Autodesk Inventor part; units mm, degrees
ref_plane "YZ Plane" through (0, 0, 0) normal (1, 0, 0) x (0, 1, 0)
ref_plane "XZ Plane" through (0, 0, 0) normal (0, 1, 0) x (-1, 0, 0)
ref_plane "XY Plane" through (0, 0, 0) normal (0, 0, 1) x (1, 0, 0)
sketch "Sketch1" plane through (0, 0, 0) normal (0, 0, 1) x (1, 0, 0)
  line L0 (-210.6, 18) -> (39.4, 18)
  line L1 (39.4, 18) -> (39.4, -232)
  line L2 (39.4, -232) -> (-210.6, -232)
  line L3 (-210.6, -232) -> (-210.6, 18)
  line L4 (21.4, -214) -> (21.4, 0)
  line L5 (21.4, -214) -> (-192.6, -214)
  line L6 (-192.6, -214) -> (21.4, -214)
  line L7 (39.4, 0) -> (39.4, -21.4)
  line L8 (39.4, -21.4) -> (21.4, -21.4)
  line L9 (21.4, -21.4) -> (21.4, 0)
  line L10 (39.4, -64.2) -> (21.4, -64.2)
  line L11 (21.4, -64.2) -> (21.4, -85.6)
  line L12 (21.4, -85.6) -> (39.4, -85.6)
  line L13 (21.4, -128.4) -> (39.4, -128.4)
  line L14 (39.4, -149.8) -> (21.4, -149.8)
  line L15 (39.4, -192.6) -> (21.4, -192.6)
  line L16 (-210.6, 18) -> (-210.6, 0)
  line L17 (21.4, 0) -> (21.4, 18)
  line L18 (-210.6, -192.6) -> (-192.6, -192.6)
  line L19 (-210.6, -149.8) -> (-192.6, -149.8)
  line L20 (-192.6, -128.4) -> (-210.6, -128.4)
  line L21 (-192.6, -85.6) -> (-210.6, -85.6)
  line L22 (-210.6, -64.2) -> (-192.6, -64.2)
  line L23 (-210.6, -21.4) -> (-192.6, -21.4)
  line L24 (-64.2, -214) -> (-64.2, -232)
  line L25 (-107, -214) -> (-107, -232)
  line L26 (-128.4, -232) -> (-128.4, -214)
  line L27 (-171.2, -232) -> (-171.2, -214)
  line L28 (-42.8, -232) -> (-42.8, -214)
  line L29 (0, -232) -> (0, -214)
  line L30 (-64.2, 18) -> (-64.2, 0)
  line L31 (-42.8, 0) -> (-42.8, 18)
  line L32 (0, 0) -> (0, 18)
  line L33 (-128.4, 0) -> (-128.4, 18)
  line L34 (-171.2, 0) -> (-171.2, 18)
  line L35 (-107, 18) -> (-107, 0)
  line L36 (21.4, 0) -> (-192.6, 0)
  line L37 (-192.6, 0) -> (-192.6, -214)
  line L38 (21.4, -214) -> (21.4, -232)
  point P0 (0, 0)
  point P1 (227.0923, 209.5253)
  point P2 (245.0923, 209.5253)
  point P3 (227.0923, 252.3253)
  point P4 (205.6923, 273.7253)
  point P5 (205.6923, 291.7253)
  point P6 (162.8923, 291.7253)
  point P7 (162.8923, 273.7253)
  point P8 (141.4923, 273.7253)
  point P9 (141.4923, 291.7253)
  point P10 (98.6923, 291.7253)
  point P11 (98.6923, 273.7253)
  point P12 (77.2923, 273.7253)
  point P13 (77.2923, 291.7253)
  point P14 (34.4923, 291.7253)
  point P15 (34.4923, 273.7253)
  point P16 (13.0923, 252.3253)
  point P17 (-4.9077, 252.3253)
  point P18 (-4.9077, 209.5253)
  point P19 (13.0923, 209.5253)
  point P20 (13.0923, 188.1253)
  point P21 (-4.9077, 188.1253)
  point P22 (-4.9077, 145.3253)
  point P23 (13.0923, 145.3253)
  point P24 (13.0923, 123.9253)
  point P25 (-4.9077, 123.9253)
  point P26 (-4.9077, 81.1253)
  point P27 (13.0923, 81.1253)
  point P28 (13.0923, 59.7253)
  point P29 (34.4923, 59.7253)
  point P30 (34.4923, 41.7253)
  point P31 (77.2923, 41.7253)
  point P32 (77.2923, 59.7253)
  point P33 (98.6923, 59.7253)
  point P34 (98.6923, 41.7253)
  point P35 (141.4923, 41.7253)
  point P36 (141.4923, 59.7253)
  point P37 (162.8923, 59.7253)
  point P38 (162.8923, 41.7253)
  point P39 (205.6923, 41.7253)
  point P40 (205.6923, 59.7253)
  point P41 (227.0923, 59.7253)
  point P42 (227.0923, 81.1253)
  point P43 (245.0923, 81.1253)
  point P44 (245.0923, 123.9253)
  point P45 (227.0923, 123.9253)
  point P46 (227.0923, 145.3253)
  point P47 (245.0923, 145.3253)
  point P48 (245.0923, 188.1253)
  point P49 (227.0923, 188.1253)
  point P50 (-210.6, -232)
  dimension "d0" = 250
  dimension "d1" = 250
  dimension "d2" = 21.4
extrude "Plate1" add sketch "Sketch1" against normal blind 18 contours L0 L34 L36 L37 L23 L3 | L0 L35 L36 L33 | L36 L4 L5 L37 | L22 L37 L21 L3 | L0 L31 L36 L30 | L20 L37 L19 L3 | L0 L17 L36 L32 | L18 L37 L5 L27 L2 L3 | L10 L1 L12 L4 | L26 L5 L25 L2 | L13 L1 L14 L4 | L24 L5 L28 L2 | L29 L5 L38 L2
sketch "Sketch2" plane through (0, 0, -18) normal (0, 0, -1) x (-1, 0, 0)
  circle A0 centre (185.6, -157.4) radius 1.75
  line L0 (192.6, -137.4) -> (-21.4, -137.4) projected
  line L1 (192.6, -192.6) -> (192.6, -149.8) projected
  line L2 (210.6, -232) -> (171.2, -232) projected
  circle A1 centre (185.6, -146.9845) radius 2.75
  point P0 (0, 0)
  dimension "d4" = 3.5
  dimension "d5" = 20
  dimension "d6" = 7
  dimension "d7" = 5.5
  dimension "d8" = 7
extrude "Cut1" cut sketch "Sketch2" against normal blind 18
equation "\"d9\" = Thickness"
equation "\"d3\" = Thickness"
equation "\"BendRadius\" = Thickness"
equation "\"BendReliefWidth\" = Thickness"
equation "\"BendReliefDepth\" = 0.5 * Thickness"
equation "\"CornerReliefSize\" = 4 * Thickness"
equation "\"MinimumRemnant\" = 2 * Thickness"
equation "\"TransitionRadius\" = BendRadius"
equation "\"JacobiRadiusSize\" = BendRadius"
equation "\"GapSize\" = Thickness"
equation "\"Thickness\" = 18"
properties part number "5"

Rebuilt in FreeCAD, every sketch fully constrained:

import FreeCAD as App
import Part
import Sketcher
from FreeCAD import Vector


def add_polygon(sketch, points):
    """Adds a closed chain of lines whose ends are joined by coincident constraints."""
    first, n = sketch.GeometryCount, len(points)
    for a, b in zip(points, points[1:] + points[:1]):
        sketch.addGeometry(Part.LineSegment(App.Vector(*a, 0), App.Vector(*b, 0)), False)
    for i in range(n):
        sketch.addConstraint(Sketcher.Constraint("Coincident", first + i, 2, first + (i + 1) % n, 1))

doc = App.newDocument("Part")
body = doc.addObject("PartDesign::Body", "Body")

# Sketch on XY plane
sketch1 = body.newObject("Sketcher::SketchObject", "Sketch")
sketch1.AttachmentSupport = (doc.getObject("XY_Plane"), [""])
sketch1.MapMode = "FlatFace"
add_polygon(sketch1, [(-171, 18), (-211, 18), (-211, -21), (-193, -21), (-193, -64), (-211, -64), (-211, -86), (-193, -86), (-193, -128), (-211, -128), (-211, -150), (-193, -150), (-193, -193), (-211, -193), (-211, -232), (-171, -232), (-171, -214), (-128, -214), (-128, -232), (-107, -232), (-107, -214), (-64, -214), (-64, -232), (-43, -232), (-43, -214), (0, -214), (0, -232), (21, -232), (21, -150), (39, -150), (39, -128), (21, -128), (21, -86), (39, -86), (39, -64), (21, -64), (21, 18), (0, 18), (0, 0), (-43, 0), (-43, 18), (-64, 18), (-64, 0), (-107, 0), (-107, 18), (-128, 18), (-128, 0), (-171, 0)])  # lines 0-47
sketch1.addConstraint([
    Sketcher.Constraint("Horizontal", 0),
    Sketcher.Constraint("Vertical", 1),
    Sketcher.Constraint("Horizontal", 2),
    Sketcher.Constraint("Vertical", 3),
    Sketcher.Constraint("Horizontal", 4),
    Sketcher.Constraint("Vertical", 5),
    Sketcher.Constraint("Horizontal", 6),
    Sketcher.Constraint("Vertical", 7),
    Sketcher.Constraint("Horizontal", 8),
    Sketcher.Constraint("Vertical", 9),
    Sketcher.Constraint("Horizontal", 10),
    Sketcher.Constraint("Vertical", 11),
    Sketcher.Constraint("Horizontal", 12),
    Sketcher.Constraint("Vertical", 13),
    Sketcher.Constraint("Horizontal", 14),
    Sketcher.Constraint("Vertical", 15),
    Sketcher.Constraint("Horizontal", 16),
    Sketcher.Constraint("Vertical", 17),
    Sketcher.Constraint("Horizontal", 18),
    Sketcher.Constraint("Vertical", 19),
    Sketcher.Constraint("Horizontal", 20),
    Sketcher.Constraint("Vertical", 21),
    Sketcher.Constraint("Horizontal", 22),
    Sketcher.Constraint("Vertical", 23),
    Sketcher.Constraint("Horizontal", 24),
    Sketcher.Constraint("Vertical", 25),
    Sketcher.Constraint("Horizontal", 26),
    Sketcher.Constraint("Vertical", 27),
    Sketcher.Constraint("Horizontal", 28),
    Sketcher.Constraint("Vertical", 29),
    Sketcher.Constraint("Horizontal", 30),
    Sketcher.Constraint("Vertical", 31),
    Sketcher.Constraint("Horizontal", 32),
    Sketcher.Constraint("Vertical", 33),
    Sketcher.Constraint("Horizontal", 34),
    Sketcher.Constraint("Vertical", 35),
    Sketcher.Constraint("Horizontal", 36),
    Sketcher.Constraint("Vertical", 37),
    Sketcher.Constraint("Horizontal", 38),
    Sketcher.Constraint("Vertical", 39),
    Sketcher.Constraint("Horizontal", 40),
    Sketcher.Constraint("Vertical", 41),
    Sketcher.Constraint("Horizontal", 42),
    Sketcher.Constraint("Vertical", 43),
    Sketcher.Constraint("Horizontal", 44),
    Sketcher.Constraint("Vertical", 45),
    Sketcher.Constraint("Horizontal", 46),
    Sketcher.Constraint("Vertical", 47),
    Sketcher.Constraint("Coincident", 37, 2, -1, 1),
    Sketcher.Constraint("PointOnObject", 24, 2, -2),
    Sketcher.Constraint("PointOnObject", 41, 2, -1),
    Sketcher.Constraint("PointOnObject", 45, 2, -1),
    Sketcher.Constraint("Horizontal", 14, 2, 17, 2),
    Sketcher.Constraint("Horizontal", 16, 2, 19, 2),
    Sketcher.Constraint("Horizontal", 18, 2, 21, 2),
    Sketcher.Constraint("Horizontal", 20, 2, 23, 2),
    Sketcher.Constraint("Horizontal", 22, 2, 25, 2),
    Sketcher.Constraint("Horizontal", 10, 2, 27, 2),
    Sketcher.Constraint("Horizontal", 8, 2, 29, 2),
    Sketcher.Constraint("Horizontal", 6, 2, 31, 2),
    Sketcher.Constraint("Horizontal", 4, 2, 33, 2),
    Sketcher.Constraint("Horizontal", 0, 2, 35, 2),
    Sketcher.Constraint("Horizontal", 36, 2, 39, 2),
    Sketcher.Constraint("Horizontal", 40, 2, 43, 2),
    Sketcher.Constraint("Vertical", 1, 2, 4, 2),
    Sketcher.Constraint("Vertical", 3, 2, 6, 2),
    Sketcher.Constraint("Vertical", 5, 2, 8, 2),
    Sketcher.Constraint("Vertical", 7, 2, 10, 2),
    Sketcher.Constraint("Vertical", 9, 2, 12, 2),
    Sketcher.Constraint("Vertical", 27, 2, 30, 2),
    Sketcher.Constraint("Vertical", 29, 2, 32, 2),
    Sketcher.Constraint("Vertical", 31, 2, 34, 2),
    Sketcher.Constraint("Vertical", 23, 2, 38, 2),
    Sketcher.Constraint("Vertical", 21, 2, 40, 2),
    Sketcher.Constraint("Vertical", 19, 2, 42, 2),
    Sketcher.Constraint("Vertical", 17, 2, 44, 2),
    Sketcher.Constraint("Vertical", 15, 2, 46, 2),
    Sketcher.Constraint("Equal", 16, 20),
    Sketcher.Constraint("Equal", 18, 22),
    Sketcher.Constraint("Equal", 20, 24),
    Sketcher.Constraint("Equal", 22, 26),
    Sketcher.Constraint("Equal", 12, 28),
    Sketcher.Constraint("Equal", 14, 1),
    Sketcher.Constraint("Equal", 46, 3),
    Sketcher.Constraint("Equal", 44, 5),
    Sketcher.Constraint("Equal", 3, 7),
    Sketcher.Constraint("Equal", 5, 9),
    Sketcher.Constraint("Equal", 7, 11),
    Sketcher.Constraint("Equal", 1, 13),
    Sketcher.Constraint("Equal", 34, 15),
    Sketcher.Constraint("Equal", 25, 37),
    Sketcher.Constraint("DistanceX", 18, 1, 18, 2, 21.4),
    Sketcher.Constraint("DistanceY", 1, 2, -1, 1, 21.4),
    Sketcher.Constraint("DistanceX", 2, 1, 2, 2, 18.0),
    Sketcher.Constraint("DistanceX", 16, 1, 16, 2, 42.8),
])
pad1 = body.newObject("PartDesign::Pad", "Pad")
pad1.Profile = sketch1
pad1.Length = 18
pad1.Reversed = True

# Sketch on XY plane
sketch2 = body.newObject("Sketcher::SketchObject", "Sketch001")
sketch2.AttachmentSupport = (doc.getObject("XY_Plane"), [""])
sketch2.MapMode = "FlatFace"
sketch2.AttachmentOffset = App.Placement(Vector(0, 0, -18), App.Rotation())
sketch2.addGeometry([
    Part.Circle(Vector(-185.6, -157.4, 0), Vector(0, 0, 1), 1.8),
    Part.Circle(Vector(-185.6, -147, 0), Vector(0, 0, 1), 2.8),
], False)
sketch2.addConstraint([
    Sketcher.Constraint("Vertical", 0, 3, 1, 3),
    Sketcher.Constraint("Diameter", 0, 3.5),
    Sketcher.Constraint("Diameter", 1, 5.5),
    Sketcher.Constraint("DistanceX", 0, 3, -1, 1, 185.6),
    Sketcher.Constraint("DistanceY", 0, 3, -1, 1, 157.4),
    Sketcher.Constraint("DistanceY", 1, 3, -1, 1, 146.9845),
])
pocket1 = body.newObject("PartDesign::Pocket", "Pocket")
pocket1.Profile = sketch2
pocket1.Length = 18
pocket1.Reversed = True

doc.recompute()
